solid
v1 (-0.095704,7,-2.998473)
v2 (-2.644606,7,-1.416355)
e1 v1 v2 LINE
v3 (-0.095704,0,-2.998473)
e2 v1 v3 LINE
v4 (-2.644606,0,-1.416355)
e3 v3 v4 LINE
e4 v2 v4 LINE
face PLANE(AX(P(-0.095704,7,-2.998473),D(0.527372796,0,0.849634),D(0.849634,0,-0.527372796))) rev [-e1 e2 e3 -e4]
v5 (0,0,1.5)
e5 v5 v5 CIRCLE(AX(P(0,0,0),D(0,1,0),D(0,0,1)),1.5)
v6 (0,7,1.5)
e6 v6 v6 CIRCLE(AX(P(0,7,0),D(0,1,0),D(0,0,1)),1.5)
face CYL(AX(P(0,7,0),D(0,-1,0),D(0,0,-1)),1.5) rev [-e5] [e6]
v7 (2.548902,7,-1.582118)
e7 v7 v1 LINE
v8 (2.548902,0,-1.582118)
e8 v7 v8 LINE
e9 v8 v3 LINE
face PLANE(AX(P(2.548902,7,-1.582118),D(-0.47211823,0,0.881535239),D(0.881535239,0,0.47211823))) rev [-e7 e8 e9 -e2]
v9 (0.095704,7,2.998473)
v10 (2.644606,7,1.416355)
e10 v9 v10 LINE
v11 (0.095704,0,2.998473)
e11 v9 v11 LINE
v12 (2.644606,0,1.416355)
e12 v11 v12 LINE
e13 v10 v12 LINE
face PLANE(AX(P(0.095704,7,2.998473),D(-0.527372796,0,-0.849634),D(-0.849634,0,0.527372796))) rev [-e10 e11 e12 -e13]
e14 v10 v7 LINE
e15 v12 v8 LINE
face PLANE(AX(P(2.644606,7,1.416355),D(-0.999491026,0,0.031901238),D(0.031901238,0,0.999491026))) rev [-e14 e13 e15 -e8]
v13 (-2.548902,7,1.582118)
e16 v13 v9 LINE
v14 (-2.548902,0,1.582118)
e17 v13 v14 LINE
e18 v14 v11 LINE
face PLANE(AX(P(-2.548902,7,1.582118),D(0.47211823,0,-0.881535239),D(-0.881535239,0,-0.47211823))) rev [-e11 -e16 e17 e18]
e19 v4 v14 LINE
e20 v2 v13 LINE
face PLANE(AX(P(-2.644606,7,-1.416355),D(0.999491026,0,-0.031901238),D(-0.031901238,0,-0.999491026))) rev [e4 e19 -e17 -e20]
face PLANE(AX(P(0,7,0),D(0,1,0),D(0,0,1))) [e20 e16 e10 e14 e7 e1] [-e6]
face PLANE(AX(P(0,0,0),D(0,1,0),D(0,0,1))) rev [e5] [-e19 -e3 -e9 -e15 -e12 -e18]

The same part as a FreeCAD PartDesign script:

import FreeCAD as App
import Part
import Sketcher

V = App.Vector

doc = App.newDocument("Part")
body = doc.addObject("PartDesign::Body", "Body")

sketch1 = doc.addObject("Sketcher::SketchObject", "Sketch")
body.addObject(sketch1)
sketch1.AttachmentSupport = (doc.XZ_Plane, [""])
sketch1.MapMode = "FlatFace"
sketch1.addGeometry([
    Part.LineSegment(V(2.5, -1.6, 0), V(-0.1, -3, 0)),
    Part.LineSegment(V(-0.1, -3, 0), V(-2.6, -1.4, 0)),
    Part.LineSegment(V(-2.6, -1.4, 0), V(-2.5, 1.6, 0)),
    Part.LineSegment(V(-2.5, 1.6, 0), V(0.1, 3, 0)),
    Part.LineSegment(V(0.1, 3, 0), V(2.6, 1.4, 0)),
    Part.LineSegment(V(2.6, 1.4, 0), V(2.5, -1.6, 0)),
    Part.Circle(V(0, 0, 0), V(0, 0, 1), 1.5),
], False)
sketch1.addConstraint([
    Sketcher.Constraint("Coincident", 0, 2, 1, 1),
    Sketcher.Constraint("Coincident", 1, 2, 2, 1),
    Sketcher.Constraint("Coincident", 2, 2, 3, 1),
    Sketcher.Constraint("Coincident", 3, 2, 4, 1),
    Sketcher.Constraint("Coincident", 4, 2, 5, 1),
    Sketcher.Constraint("Coincident", 5, 2, 0, 1),
    Sketcher.Constraint("Coincident", 6, 3, -1, 1),
    Sketcher.Constraint("Symmetric", 0, 2, 3, 2, -1, 1),
    Sketcher.Constraint("Symmetric", 1, 2, 4, 2, -1, 1),
    Sketcher.Constraint("Symmetric", 2, 2, 5, 2, -1, 1),
    Sketcher.Constraint("Equal", 0, 1),
    Sketcher.Constraint("Equal", 1, 2),
    Sketcher.Constraint("Diameter", 6, 3.0),
    Sketcher.Constraint("Distance", 0, 3.0),
    Sketcher.Constraint("DistanceX", 2, 2, 0, 2, 2.453198),
    Sketcher.Constraint("DistanceY", -1, 1, 2, 2, 1.582118),
    Sketcher.Constraint("DistanceY", 0, 2, 1, 2, 1.582118),
])
pad1 = doc.addObject("PartDesign::Pad", "Pad")
body.addObject(pad1)
pad1.Profile = sketch1
pad1.Length = 7
pad1.Reversed = True

doc.recompute()
